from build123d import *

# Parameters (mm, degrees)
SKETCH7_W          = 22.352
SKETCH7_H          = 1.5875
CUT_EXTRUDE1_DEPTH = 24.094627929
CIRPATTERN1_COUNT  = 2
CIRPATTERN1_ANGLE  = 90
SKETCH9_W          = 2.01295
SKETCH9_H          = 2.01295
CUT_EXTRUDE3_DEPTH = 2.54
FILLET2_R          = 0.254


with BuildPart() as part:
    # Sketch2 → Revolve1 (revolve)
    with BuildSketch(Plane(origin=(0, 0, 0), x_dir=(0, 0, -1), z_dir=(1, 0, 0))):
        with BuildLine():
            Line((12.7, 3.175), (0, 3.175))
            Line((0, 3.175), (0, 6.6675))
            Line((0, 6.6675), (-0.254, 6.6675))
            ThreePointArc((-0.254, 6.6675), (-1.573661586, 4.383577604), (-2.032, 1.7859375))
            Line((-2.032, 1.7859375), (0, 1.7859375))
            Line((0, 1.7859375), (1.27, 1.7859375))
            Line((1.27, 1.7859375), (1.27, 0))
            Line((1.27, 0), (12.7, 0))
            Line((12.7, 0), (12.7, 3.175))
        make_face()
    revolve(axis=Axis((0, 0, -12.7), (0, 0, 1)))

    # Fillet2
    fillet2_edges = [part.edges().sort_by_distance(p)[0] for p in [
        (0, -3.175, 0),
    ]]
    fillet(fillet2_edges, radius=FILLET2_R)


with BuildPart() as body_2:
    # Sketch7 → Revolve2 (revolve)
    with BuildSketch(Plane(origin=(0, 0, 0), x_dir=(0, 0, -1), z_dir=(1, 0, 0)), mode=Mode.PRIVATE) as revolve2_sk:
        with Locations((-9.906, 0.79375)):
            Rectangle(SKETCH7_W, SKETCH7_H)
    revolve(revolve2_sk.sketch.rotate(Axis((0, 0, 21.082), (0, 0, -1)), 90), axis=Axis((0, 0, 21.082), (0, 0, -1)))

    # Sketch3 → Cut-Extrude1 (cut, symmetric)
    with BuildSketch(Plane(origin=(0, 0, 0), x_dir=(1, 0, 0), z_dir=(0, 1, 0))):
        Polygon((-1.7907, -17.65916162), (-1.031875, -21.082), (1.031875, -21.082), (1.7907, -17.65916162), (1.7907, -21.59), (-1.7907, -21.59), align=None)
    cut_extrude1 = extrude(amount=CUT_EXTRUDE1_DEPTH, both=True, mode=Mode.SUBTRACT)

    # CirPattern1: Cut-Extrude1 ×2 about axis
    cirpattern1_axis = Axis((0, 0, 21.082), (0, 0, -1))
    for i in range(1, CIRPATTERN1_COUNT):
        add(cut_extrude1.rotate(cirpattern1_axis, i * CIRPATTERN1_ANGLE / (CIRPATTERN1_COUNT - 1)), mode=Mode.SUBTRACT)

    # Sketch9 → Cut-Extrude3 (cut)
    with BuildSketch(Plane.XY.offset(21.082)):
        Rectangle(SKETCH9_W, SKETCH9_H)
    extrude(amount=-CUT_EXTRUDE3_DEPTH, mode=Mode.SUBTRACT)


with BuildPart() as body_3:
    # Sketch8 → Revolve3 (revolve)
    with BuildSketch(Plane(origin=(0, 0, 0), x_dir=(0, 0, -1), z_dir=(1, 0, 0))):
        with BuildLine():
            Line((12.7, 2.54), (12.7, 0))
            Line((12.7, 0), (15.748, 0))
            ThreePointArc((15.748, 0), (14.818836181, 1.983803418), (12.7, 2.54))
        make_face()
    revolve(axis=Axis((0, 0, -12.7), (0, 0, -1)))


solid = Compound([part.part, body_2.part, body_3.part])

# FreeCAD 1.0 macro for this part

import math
import FreeCAD as App
import Part
import Sketcher
from FreeCAD import Vector
Q = App.Units.Quantity


def edges_at(feature, points):
    """Names of the edges that pass closest to the given points."""
    edges = feature.Shape.Edges
    near = lambda p: min(range(len(edges)), key=lambda i: edges[i].distToShape(Part.Vertex(*p))[0])
    return sorted({f"Edge{near(p) + 1}" for p in points})

doc = App.newDocument("Part")
body = doc.addObject("PartDesign::Body", "Body")

sketch1 = doc.addObject("Sketcher::SketchObject", "Sketch")
body.addObject(sketch1)
sketch1.AttachmentSupport = (doc.YZ_Plane, [""])
sketch1.MapMode = "FlatFace"
sketch1.addGeometry([
    Part.LineSegment(Vector(3.17, -12.7, 0), Vector(3.17, 0, 0)),
    Part.LineSegment(Vector(3.17, 0, 0), Vector(6.67, 0, 0)),
    Part.LineSegment(Vector(6.67, 0, 0), Vector(6.67, 0.25, 0)),
    Part.ArcOfCircle(Part.Circle(Vector(1.79, -5.56, 0), Vector(0, 0, 1), 7.59), math.radians(50), math.radians(90)),
    Part.LineSegment(Vector(1.79, 2.03, 0), Vector(1.79, -1.27, 0)),
    Part.LineSegment(Vector(1.79, -1.27, 0), Vector(0, -1.27, 0)),
    Part.LineSegment(Vector(0, -1.27, 0), Vector(0, -12.7, 0)),
    Part.LineSegment(Vector(0, -12.7, 0), Vector(3.17, -12.7, 0)),
], False)
sketch1.addConstraint([
    Sketcher.Constraint("Coincident", 0, 2, 1, 1),
    Sketcher.Constraint("Coincident", 1, 2, 2, 1),
    Sketcher.Constraint("Coincident", 2, 2, 3, 1),
    Sketcher.Constraint("Coincident", 3, 2, 4, 1),
    Sketcher.Constraint("Coincident", 4, 2, 5, 1),
    Sketcher.Constraint("Coincident", 5, 2, 6, 1),
    Sketcher.Constraint("Coincident", 6, 2, 7, 1),
    Sketcher.Constraint("Coincident", 7, 2, 0, 1),
    Sketcher.Constraint("Vertical", 0),
    Sketcher.Constraint("Horizontal", 1),
    Sketcher.Constraint("Vertical", 2),
    Sketcher.Constraint("Vertical", 4),
    Sketcher.Constraint("Horizontal", 5),
    Sketcher.Constraint("Vertical", 6),
    Sketcher.Constraint("Horizontal", 7),
    Sketcher.Constraint("PointOnObject", 0, 2, -1),
    Sketcher.Constraint("PointOnObject", 5, 2, -2),
    Sketcher.Constraint("DistanceY", 0, 1, 0, 2, Q("0.5 in")),
    Sketcher.Constraint("DistanceY", 2, 1, 2, 2, Q("0.01 in")),
    Sketcher.Constraint("DistanceY", 4, 2, 4, 1, Q("0.13 in")),
    Sketcher.Constraint("DistanceY", 6, 2, 6, 1, Q("0.45 in")),
    Sketcher.Constraint("DistanceX", 7, 1, 7, 2, Q("0.125 in")),
    Sketcher.Constraint("DistanceX", 1, 1, 1, 2, Q("0.1375 in")),
    Sketcher.Constraint("Radius", 3, Q("7.590252 mm")),
    Sketcher.Constraint("DistanceX", 5, 2, 5, 1, Q("1.785937 mm")),
])
revolution = doc.addObject("PartDesign::Revolution", "Revolution")
body.addObject(revolution)
revolution.Profile = sketch1
revolution.ReferenceAxis = (sketch1, ["V_Axis"])
revolution.Angle = 360
doc.recompute()

fillet = doc.addObject("PartDesign::Fillet", "Fillet")
body.addObject(fillet)
fillet.Base = (revolution, edges_at(revolution, [(0, -3.175, 0)]))
fillet.Radius = Q("0.01 in")
body2 = doc.addObject("PartDesign::Body", "Body001")

sketch2 = doc.addObject("Sketcher::SketchObject", "Sketch001")
body2.addObject(sketch2)
sketch2.AttachmentSupport = (doc.getObject("YZ_Plane001"), [""])
sketch2.MapMode = "FlatFace"
sketch2.addGeometry([
    Part.LineSegment(Vector(1.6, 21.1, 0), Vector(0, 21.1, 0)),
    Part.LineSegment(Vector(0, 21.1, 0), Vector(0, -1.3, 0)),
    Part.LineSegment(Vector(0, -1.3, 0), Vector(1.6, -1.3, 0)),
    Part.LineSegment(Vector(1.6, -1.3, 0), Vector(1.6, 21.1, 0)),
], False)
sketch2.addConstraint([
    Sketcher.Constraint("Coincident", 0, 2, 1, 1),
    Sketcher.Constraint("Coincident", 1, 2, 2, 1),
    Sketcher.Constraint("Coincident", 2, 2, 3, 1),
    Sketcher.Constraint("Coincident", 3, 2, 0, 1),
    Sketcher.Constraint("Horizontal", 0),
    Sketcher.Constraint("Vertical", 1),
    Sketcher.Constraint("Horizontal", 2),
    Sketcher.Constraint("Vertical", 3),
    Sketcher.Constraint("PointOnObject", 0, 2, -2),
    Sketcher.Constraint("DistanceY", 1, 2, 1, 1, Q("0.88 in")),
    Sketcher.Constraint("DistanceX", 0, 2, 0, 1, Q("0.0625 in")),
    Sketcher.Constraint("DistanceY", -1, 1, 0, 2, Q("0.83 in")),
])
revolution2 = doc.addObject("PartDesign::Revolution", "Revolution001")
body2.addObject(revolution2)
revolution2.Profile = sketch2
revolution2.ReferenceAxis = (sketch2, ["V_Axis"])
revolution2.Angle = 360

sketch3 = doc.addObject("Sketcher::SketchObject", "Sketch002")
body2.addObject(sketch3)
sketch3.AttachmentSupport = (doc.getObject("XZ_Plane001"), [""])
sketch3.MapMode = "FlatFace"
sketch3.addGeometry([
    Part.LineSegment(Vector(-1, 21.1, 0), Vector(-1.8, 17.7, 0)),
    Part.LineSegment(Vector(-1.8, 17.7, 0), Vector(-1.8, 21.6, 0)),
    Part.LineSegment(Vector(-1.8, 21.6, 0), Vector(1.8, 21.6, 0)),
    Part.LineSegment(Vector(1.8, 21.6, 0), Vector(1.8, 17.7, 0)),
    Part.LineSegment(Vector(1.8, 17.7, 0), Vector(1, 21.1, 0)),
    Part.LineSegment(Vector(1, 21.1, 0), Vector(-1, 21.1, 0)),
], False)
sketch3.addConstraint([
    Sketcher.Constraint("Coincident", 0, 2, 1, 1),
    Sketcher.Constraint("Coincident", 1, 2, 2, 1),
    Sketcher.Constraint("Coincident", 2, 2, 3, 1),
    Sketcher.Constraint("Coincident", 3, 2, 4, 1),
    Sketcher.Constraint("Coincident", 4, 2, 5, 1),
    Sketcher.Constraint("Coincident", 5, 2, 0, 1),
    Sketcher.Constraint("Vertical", 1),
    Sketcher.Constraint("Horizontal", 2),
    Sketcher.Constraint("Vertical", 3),
    Sketcher.Constraint("Horizontal", 5),
    Sketcher.Constraint("Symmetric", 0, 2, 3, 2, -2),
    Sketcher.Constraint("Equal", 0, 4),
    Sketcher.Constraint("Angle", 0, Q("-102.5 deg")),
    Sketcher.Constraint("DistanceX", 2, 1, 2, 2, Q("0.141 in")),
    Sketcher.Constraint("DistanceY", -1, 1, 1, 2, Q("0.85 in")),
    Sketcher.Constraint("DistanceY", -1, 1, 4, 2, Q("0.83 in")),
    Sketcher.Constraint("DistanceX", 5, 2, 5, 1, Q("2.06375 mm")),
])
pocket1 = doc.addObject("PartDesign::Pocket", "Pocket")
body2.addObject(pocket1)
pocket1.Profile = sketch3
pocket1.Length = 48.189256
pocket1.Midplane = True
doc.recompute()

polarpattern = doc.addObject("PartDesign::PolarPattern", "PolarPattern")
body2.addObject(polarpattern)
polarpattern.Originals = [pocket1]
polarpattern.Axis = (doc.getObject("Z_Axis001"), [""])
polarpattern.Angle = 90
polarpattern.Occurrences = 2
polarpattern.Reversed = True
body2.Tip = polarpattern

sketch4 = doc.addObject("Sketcher::SketchObject", "Sketch003")
body2.addObject(sketch4)
sketch4.AttachmentSupport = (doc.getObject("XY_Plane001"), [""])
sketch4.MapMode = "FlatFace"
sketch4.AttachmentOffset = App.Placement(Vector(0, 0, 0.83 * 25.4), App.Rotation())
sketch4.addGeometry([
    Part.LineSegment(Vector(-1, 1, 0), Vector(-1, -1, 0)),
    Part.LineSegment(Vector(-1, -1, 0), Vector(1, -1, 0)),
    Part.LineSegment(Vector(1, -1, 0), Vector(1, 1, 0)),
    Part.LineSegment(Vector(1, 1, 0), Vector(-1, 1, 0)),
], False)
sketch4.addConstraint([
    Sketcher.Constraint("Coincident", 0, 2, 1, 1),
    Sketcher.Constraint("Coincident", 1, 2, 2, 1),
    Sketcher.Constraint("Coincident", 2, 2, 3, 1),
    Sketcher.Constraint("Coincident", 3, 2, 0, 1),
    Sketcher.Constraint("Vertical", 0),
    Sketcher.Constraint("Horizontal", 1),
    Sketcher.Constraint("Vertical", 2),
    Sketcher.Constraint("Horizontal", 3),
    Sketcher.Constraint("Symmetric", 0, 2, 2, 2, -1, 1),
    Sketcher.Constraint("Equal", 3, 0),
    Sketcher.Constraint("DistanceX", 1, 1, 1, 2, Q("2.01295 mm")),
])
pocket2 = doc.addObject("PartDesign::Pocket", "Pocket001")
body2.addObject(pocket2)
pocket2.Profile = sketch4
pocket2.Length = Q("0.1 in")
body3 = doc.addObject("PartDesign::Body", "Body002")

sketch5 = doc.addObject("Sketcher::SketchObject", "Sketch004")
body3.addObject(sketch5)
sketch5.AttachmentSupport = (doc.getObject("YZ_Plane002"), [""])
sketch5.MapMode = "FlatFace"
sketch5.addGeometry([
    Part.LineSegment(Vector(2.5, -12.7, 0), Vector(0, -12.7, 0)),
    Part.LineSegment(Vector(0, -12.7, 0), Vector(0, -15.7, 0)),
    Part.ArcOfCircle(Part.Circle(Vector(0, -13.2, 0), Vector(0, 0, 1), 2.6), math.radians(-90), math.radians(10)),
], False)
sketch5.addConstraint([
    Sketcher.Constraint("Coincident", 0, 2, 1, 1),
    Sketcher.Constraint("Coincident", 1, 2, 2, 1),
    Sketcher.Constraint("Coincident", 2, 2, 0, 1),
    Sketcher.Constraint("Horizontal", 0),
    Sketcher.Constraint("Vertical", 1),
    Sketcher.Constraint("PointOnObject", 2, 3, -2),
    Sketcher.Constraint("PointOnObject", 0, 2, -2),
    Sketcher.Constraint("DistanceX", 0, 2, 0, 1, Q("0.1 in")),
    Sketcher.Constraint("DistanceY", 1, 2, 1, 1, Q("0.12 in")),
    Sketcher.Constraint("DistanceY", 0, 2, -1, 1, Q("0.5 in")),
])
revolution3 = doc.addObject("PartDesign::Revolution", "Revolution002")
body3.addObject(revolution3)
revolution3.Profile = sketch5
revolution3.ReferenceAxis = (sketch5, ["V_Axis"])
revolution3.Angle = 360

doc.recompute()
